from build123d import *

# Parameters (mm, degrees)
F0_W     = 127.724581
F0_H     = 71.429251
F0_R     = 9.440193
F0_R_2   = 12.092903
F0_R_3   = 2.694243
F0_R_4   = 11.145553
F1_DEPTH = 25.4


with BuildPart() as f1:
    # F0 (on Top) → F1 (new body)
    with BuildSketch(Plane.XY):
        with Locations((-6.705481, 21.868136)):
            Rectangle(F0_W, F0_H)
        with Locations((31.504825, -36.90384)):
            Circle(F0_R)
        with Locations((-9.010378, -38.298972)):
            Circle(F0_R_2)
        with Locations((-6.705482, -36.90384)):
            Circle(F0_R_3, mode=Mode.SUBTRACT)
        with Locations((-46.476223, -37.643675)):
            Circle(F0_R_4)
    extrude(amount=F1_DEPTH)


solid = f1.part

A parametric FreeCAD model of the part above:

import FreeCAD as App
import Part
import Sketcher
Q = App.Units.Quantity

doc = App.newDocument("Part")
body = doc.addObject("PartDesign::Body", "Body")
body.AllowCompound = True

# Sketch on XY plane
sketch1 = body.newObject("Sketcher::SketchObject", "Sketch")
sketch1.AttachmentSupport = (doc.getObject("XY_Plane"), [""])
sketch1.MapMode = "FlatFace"
sketch1.addGeometry(Part.LineSegment(App.Vector(-70.567772, 57.582761, 0), App.Vector(-70.567772, -13.84649, 0)), False)
sketch1.addGeometry(Part.LineSegment(App.Vector(-70.567772, -13.84649, 0), App.Vector(57.15681, -13.84649, 0)), False)
sketch1.addGeometry(Part.LineSegment(App.Vector(57.15681, -13.84649, 0), App.Vector(57.15681, 57.582761, 0)), False)
sketch1.addGeometry(Part.LineSegment(App.Vector(57.15681, 57.582761, 0), App.Vector(-70.567772, 57.582761, 0)), False)
sketch1.addGeometry(Part.Circle(App.Vector(31.504825, -36.90384, 0), App.Vector(0, 0, 1), 9.440193), False)
sketch1.addGeometry(Part.Circle(App.Vector(-9.010378, -38.298972, 0), App.Vector(0, 0, 1), 12.092903), False)
sketch1.addGeometry(Part.Circle(App.Vector(-6.705482, -36.90384, 0), App.Vector(0, 0, 1), 2.694243), False)
sketch1.addGeometry(Part.Circle(App.Vector(-46.476223, -37.643675, 0), App.Vector(0, 0, 1), 11.145553), False)
sketch1.addConstraint(Sketcher.Constraint("Coincident", 0, 2, 1, 1))
sketch1.addConstraint(Sketcher.Constraint("Coincident", 1, 2, 2, 1))
sketch1.addConstraint(Sketcher.Constraint("Coincident", 2, 2, 3, 1))
sketch1.addConstraint(Sketcher.Constraint("Coincident", 3, 2, 0, 1))
sketch1.addConstraint(Sketcher.Constraint("Vertical", 0))
sketch1.addConstraint(Sketcher.Constraint("Horizontal", 1))
sketch1.addConstraint(Sketcher.Constraint("Vertical", 2))
sketch1.addConstraint(Sketcher.Constraint("Horizontal", 3))
sketch1.addConstraint(Sketcher.Constraint("Horizontal", 4, 3, 6, 3))
sketch1.addConstraint(Sketcher.Constraint("Diameter", 4, 18.880386))
sketch1.addConstraint(Sketcher.Constraint("Diameter", 5, 24.185806))
sketch1.addConstraint(Sketcher.Constraint("Diameter", 6, 5.388486))
sketch1.addConstraint(Sketcher.Constraint("Diameter", 7, 22.291106))
sketch1.addConstraint(Sketcher.Constraint("DistanceX", 1, 1, 1, 2, 127.724581))
sketch1.addConstraint(Sketcher.Constraint("DistanceY", 0, 2, 0, 1, 71.429251))
sketch1.addConstraint(Sketcher.Constraint("DistanceY", 4, 3, 2, 2, 94.486602))
sketch1.addConstraint(Sketcher.Constraint("DistanceY", 4, 3, -1, 1, 36.90384))
sketch1.addConstraint(Sketcher.Constraint("DistanceX", 0, 2, -1, 1, 70.567772))
sketch1.addConstraint(Sketcher.Constraint("DistanceY", 5, 3, 4, 3, 1.395132))
sketch1.addConstraint(Sketcher.Constraint("DistanceX", 7, 3, 6, 3, 39.770741))
sketch1.addConstraint(Sketcher.Constraint("DistanceX", 7, 3, 4, 3, 77.981048))
sketch1.addConstraint(Sketcher.Constraint("DistanceX", 0, 2, 7, 3, 24.091549))
sketch1.addConstraint(Sketcher.Constraint("DistanceX", 5, 3, -1, 1, 9.010378))
sketch1.addConstraint(Sketcher.Constraint("DistanceY", 7, 3, -1, 1, 37.643675))
pad1 = body.newObject("PartDesign::Pad", "Pad")
pad1.Profile = sketch1
pad1.Length = Q("1 in")

doc.recompute()
